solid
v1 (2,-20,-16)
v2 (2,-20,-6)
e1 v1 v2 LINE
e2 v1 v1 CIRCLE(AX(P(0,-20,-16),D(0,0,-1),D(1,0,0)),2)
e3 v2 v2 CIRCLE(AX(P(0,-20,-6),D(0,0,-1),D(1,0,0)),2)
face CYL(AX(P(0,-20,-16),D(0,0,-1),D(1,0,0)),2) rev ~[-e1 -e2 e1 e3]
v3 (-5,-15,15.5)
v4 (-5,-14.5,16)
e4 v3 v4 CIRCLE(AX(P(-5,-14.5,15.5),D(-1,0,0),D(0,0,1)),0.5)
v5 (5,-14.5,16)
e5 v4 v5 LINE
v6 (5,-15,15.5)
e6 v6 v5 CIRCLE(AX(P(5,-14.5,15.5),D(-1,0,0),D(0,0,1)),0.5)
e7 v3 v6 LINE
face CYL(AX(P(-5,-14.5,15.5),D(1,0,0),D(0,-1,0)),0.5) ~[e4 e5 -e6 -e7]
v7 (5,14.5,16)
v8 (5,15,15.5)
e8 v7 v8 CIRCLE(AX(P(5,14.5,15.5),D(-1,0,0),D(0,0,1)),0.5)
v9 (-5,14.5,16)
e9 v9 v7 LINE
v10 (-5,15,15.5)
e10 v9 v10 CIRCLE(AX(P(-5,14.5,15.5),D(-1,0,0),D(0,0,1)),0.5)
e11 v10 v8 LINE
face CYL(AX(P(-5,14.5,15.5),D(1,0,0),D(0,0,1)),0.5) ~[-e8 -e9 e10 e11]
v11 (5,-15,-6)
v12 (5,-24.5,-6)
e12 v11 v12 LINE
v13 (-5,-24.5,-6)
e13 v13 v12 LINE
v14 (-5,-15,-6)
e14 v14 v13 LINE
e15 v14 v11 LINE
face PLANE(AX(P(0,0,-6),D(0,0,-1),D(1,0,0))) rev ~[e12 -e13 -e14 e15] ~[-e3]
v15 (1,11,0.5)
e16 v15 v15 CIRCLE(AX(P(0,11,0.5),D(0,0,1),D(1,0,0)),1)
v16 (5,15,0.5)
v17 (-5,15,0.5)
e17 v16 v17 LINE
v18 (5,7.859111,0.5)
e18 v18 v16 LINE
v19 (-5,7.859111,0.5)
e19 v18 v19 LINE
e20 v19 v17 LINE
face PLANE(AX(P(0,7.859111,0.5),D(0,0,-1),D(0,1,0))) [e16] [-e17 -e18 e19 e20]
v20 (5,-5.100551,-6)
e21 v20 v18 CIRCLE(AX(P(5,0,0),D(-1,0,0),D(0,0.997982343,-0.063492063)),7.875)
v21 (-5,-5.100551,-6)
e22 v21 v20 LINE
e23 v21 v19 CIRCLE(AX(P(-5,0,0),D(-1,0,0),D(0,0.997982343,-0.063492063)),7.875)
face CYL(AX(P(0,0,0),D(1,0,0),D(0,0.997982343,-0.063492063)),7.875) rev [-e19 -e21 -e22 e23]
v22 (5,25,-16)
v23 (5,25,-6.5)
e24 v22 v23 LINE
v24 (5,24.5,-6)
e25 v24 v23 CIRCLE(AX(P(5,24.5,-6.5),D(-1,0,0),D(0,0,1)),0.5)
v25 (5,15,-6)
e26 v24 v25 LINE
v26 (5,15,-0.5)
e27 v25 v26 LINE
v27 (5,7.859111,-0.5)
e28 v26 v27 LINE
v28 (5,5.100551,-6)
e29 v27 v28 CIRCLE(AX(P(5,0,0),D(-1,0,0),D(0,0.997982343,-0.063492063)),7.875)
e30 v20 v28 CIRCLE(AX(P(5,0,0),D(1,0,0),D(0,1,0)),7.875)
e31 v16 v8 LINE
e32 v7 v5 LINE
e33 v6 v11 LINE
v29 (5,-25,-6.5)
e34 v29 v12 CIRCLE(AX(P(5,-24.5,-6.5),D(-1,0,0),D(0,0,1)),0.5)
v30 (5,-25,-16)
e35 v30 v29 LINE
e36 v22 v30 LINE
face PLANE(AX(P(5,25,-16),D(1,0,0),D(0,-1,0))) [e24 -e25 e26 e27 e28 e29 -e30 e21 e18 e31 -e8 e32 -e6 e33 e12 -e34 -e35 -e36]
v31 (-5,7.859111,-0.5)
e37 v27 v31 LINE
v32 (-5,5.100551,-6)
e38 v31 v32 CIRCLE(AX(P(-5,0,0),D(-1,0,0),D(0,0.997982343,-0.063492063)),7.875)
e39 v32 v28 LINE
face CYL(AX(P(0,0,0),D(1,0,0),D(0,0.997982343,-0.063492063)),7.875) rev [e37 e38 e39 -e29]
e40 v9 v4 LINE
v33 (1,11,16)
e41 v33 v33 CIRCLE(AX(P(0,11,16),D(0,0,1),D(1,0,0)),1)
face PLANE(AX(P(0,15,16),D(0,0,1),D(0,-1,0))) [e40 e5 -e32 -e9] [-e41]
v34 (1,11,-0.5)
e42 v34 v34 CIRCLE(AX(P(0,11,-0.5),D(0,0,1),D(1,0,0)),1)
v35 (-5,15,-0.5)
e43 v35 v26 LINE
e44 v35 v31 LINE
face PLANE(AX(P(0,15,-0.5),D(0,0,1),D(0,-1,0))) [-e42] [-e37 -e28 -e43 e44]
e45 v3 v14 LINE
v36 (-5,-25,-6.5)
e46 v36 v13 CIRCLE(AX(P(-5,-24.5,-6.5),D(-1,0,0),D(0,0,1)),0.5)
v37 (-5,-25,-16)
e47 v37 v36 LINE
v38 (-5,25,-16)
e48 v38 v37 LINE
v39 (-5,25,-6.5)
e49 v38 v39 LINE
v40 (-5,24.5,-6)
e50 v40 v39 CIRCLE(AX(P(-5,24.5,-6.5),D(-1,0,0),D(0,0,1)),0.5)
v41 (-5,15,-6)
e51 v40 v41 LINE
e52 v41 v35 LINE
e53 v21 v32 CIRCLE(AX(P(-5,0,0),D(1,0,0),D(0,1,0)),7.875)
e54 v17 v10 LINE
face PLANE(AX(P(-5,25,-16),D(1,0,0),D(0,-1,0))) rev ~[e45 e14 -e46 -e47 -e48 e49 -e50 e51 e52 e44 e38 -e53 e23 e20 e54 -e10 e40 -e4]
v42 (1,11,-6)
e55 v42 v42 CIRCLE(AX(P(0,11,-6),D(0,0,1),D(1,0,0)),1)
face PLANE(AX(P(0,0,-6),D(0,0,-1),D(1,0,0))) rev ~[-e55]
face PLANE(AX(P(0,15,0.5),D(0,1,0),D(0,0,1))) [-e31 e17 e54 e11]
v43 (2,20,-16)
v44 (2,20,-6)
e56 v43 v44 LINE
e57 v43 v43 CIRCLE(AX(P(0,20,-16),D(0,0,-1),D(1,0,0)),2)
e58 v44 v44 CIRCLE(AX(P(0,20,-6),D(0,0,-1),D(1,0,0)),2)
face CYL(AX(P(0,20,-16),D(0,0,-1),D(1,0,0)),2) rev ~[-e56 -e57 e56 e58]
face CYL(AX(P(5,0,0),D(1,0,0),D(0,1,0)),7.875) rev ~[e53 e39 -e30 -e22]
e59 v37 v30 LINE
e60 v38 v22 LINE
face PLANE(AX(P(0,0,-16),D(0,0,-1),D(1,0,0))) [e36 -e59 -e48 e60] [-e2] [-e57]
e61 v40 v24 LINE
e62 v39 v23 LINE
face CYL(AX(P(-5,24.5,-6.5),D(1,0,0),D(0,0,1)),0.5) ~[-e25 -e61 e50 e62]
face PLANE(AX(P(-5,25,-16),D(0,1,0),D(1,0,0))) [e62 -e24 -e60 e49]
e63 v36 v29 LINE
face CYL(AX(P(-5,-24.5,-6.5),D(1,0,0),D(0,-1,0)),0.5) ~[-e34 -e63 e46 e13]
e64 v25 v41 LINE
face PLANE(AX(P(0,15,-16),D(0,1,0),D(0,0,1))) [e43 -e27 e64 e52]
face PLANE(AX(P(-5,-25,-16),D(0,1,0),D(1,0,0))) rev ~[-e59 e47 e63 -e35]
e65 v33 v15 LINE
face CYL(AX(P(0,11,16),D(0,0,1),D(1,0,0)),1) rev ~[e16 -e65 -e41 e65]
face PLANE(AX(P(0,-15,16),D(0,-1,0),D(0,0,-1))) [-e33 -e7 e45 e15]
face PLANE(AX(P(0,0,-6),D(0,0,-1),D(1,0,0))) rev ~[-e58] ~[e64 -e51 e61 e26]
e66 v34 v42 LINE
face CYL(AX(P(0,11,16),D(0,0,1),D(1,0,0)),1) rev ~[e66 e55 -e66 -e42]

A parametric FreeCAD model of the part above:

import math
import FreeCAD as App
import Part
import Sketcher
Q = App.Units.Quantity


def edges_at(feature, points):
    """Names of the edges that pass closest to the given points."""
    edges = feature.Shape.Edges
    near = lambda p: min(range(len(edges)), key=lambda i: edges[i].distToShape(Part.Vertex(*p))[0])
    return sorted({f"Edge{near(p) + 1}" for p in points})

doc = App.newDocument("Part")
body = doc.addObject("PartDesign::Body", "Body")

# Sketch on YZ plane
sketch1 = body.newObject("Sketcher::SketchObject", "Sketch")
sketch1.AttachmentSupport = (doc.getObject("YZ_Plane"), [""])
sketch1.MapMode = "FlatFace"
sketch1.addGeometry([
    Part.LineSegment(App.Vector(15, 0.5, 0), App.Vector(15, 16, 0)),  # 0
    Part.LineSegment(App.Vector(15, 16, 0), App.Vector(-15, 16, 0)),  # 1
    Part.LineSegment(App.Vector(-15, 16, 0), App.Vector(-15, -16, 0)),  # 2
    Part.LineSegment(App.Vector(-15, -16, 0), App.Vector(15, -16, 0)),  # 3
    Part.LineSegment(App.Vector(15, -16, 0), App.Vector(15, -0.5, 0)),  # 4
    Part.LineSegment(App.Vector(15, -0.5, 0), App.Vector(7.9, -0.5, 0)),  # 5
    Part.ArcOfCircle(Part.Circle(App.Vector(0, 0, 0), App.Vector(0, 0, 1), 7.9), math.radians(4), math.radians(356)),  # 6
    Part.LineSegment(App.Vector(7.9, 0.5, 0), App.Vector(15, 0.5, 0)),  # 7
], False)
sketch1.addConstraint([
    Sketcher.Constraint("Coincident", 0, 2, 1, 1),
    Sketcher.Constraint("Coincident", 1, 2, 2, 1),
    Sketcher.Constraint("Coincident", 2, 2, 3, 1),
    Sketcher.Constraint("Coincident", 3, 2, 4, 1),
    Sketcher.Constraint("Coincident", 4, 2, 5, 1),
    Sketcher.Constraint("Coincident", 5, 2, 6, 2),
    Sketcher.Constraint("Coincident", 6, 1, 7, 1),
    Sketcher.Constraint("Coincident", 7, 2, 0, 1),
    Sketcher.Constraint("Vertical", 0),
    Sketcher.Constraint("Horizontal", 1),
    Sketcher.Constraint("Vertical", 2),
    Sketcher.Constraint("Horizontal", 3),
    Sketcher.Constraint("Vertical", 4),
    Sketcher.Constraint("Horizontal", 5),
    Sketcher.Constraint("Horizontal", 7),
    Sketcher.Constraint("Coincident", 6, 3, -1, 1),
    Sketcher.Constraint("Symmetric", 0, 2, 2, 2, -1, 1),
    Sketcher.Constraint("Symmetric", 4, 2, 7, 2, -1),
    Sketcher.Constraint("DistanceX", 1, 2, 1, 1, Q("30 mm")),
    Sketcher.Constraint("DistanceY", 2, 2, 2, 1, Q("32 mm")),
    Sketcher.Constraint("DistanceY", 0, 1, 0, 2, Q("15.5 mm")),
    Sketcher.Constraint("Radius", 6, Q("7.875 mm")),
])
pad1 = body.newObject("PartDesign::Pad", "Pad")
pad1.Profile = sketch1
pad1.Type = "TwoLengths"
pad1.Length = 5
pad1.Length2 = 5

# Sketch on XY plane
sketch2 = body.newObject("Sketcher::SketchObject", "Sketch001")
sketch2.AttachmentSupport = (doc.getObject("XY_Plane"), [""])
sketch2.MapMode = "FlatFace"
sketch2.AttachmentOffset = App.Placement(App.Vector(0, 0, 16), App.Rotation())
sketch2.addGeometry(Part.Circle(App.Vector(0, 11, 0), App.Vector(0, 0, 1), 1), False)
sketch2.addConstraint([
    Sketcher.Constraint("PointOnObject", 0, 3, -2),
    Sketcher.Constraint("Diameter", 0, Q("2 mm")),
    Sketcher.Constraint("DistanceY", -1, 1, 0, 3, Q("11 mm")),
])
pocket1 = body.newObject("PartDesign::Pocket", "Pocket")
pocket1.Profile = sketch2
pocket1.Type = "ThroughAll"

# Sketch on XY plane
sketch3 = body.newObject("Sketcher::SketchObject", "Sketch002")
sketch3.AttachmentSupport = (doc.getObject("XY_Plane"), [""])
sketch3.MapMode = "FlatFace"
sketch3.AttachmentOffset = App.Placement(App.Vector(0, 0, -16), App.Rotation())
sketch3.addGeometry([
    Part.LineSegment(App.Vector(-5, -25, 0), App.Vector(-5, 25, 0)),  # 0
    Part.LineSegment(App.Vector(-5, 25, 0), App.Vector(5, 25, 0)),  # 1
    Part.LineSegment(App.Vector(5, 25, 0), App.Vector(5, -25, 0)),  # 2
    Part.LineSegment(App.Vector(5, -25, 0), App.Vector(-5, -25, 0)),  # 3
    Part.Circle(App.Vector(0, 20, 0), App.Vector(0, 0, 1), 2),  # 4
    Part.Circle(App.Vector(0, -20, 0), App.Vector(0, 0, 1), 2),  # 5
], False)
sketch3.addConstraint([
    Sketcher.Constraint("Coincident", 0, 2, 1, 1),
    Sketcher.Constraint("Coincident", 1, 2, 2, 1),
    Sketcher.Constraint("Coincident", 2, 2, 3, 1),
    Sketcher.Constraint("Coincident", 3, 2, 0, 1),
    Sketcher.Constraint("Vertical", 0),
    Sketcher.Constraint("Horizontal", 1),
    Sketcher.Constraint("Vertical", 2),
    Sketcher.Constraint("Horizontal", 3),
    Sketcher.Constraint("Equal", 4, 5),
    Sketcher.Constraint("Symmetric", 4, 3, 5, 3, -1, 1),
    Sketcher.Constraint("Symmetric", 0, 2, 2, 2, -1, 1),
    Sketcher.Constraint("PointOnObject", 4, 3, -2),
    Sketcher.Constraint("Diameter", 4, Q("4 mm")),
    Sketcher.Constraint("DistanceX", 1, 1, 1, 2, Q("10 mm")),
    Sketcher.Constraint("DistanceY", 0, 1, 0, 2, Q("50 mm")),
    Sketcher.Constraint("DistanceY", -1, 1, 4, 3, Q("20 mm")),
])
pad2 = body.newObject("PartDesign::Pad", "Pad001")
pad2.Profile = sketch3
pad2.Length = 10

# Sketch on YZ plane
sketch4 = body.newObject("Sketcher::SketchObject", "Sketch003")
sketch4.AttachmentSupport = (doc.getObject("YZ_Plane"), [""])
sketch4.MapMode = "FlatFace"
sketch4.AttachmentOffset = App.Placement(App.Vector(0, 0, 5), App.Rotation())
sketch4.addGeometry(Part.Circle(App.Vector(0, 0, 0), App.Vector(0, 0, 1), 8), False)
sketch4.addConstraint([
    Sketcher.Constraint("Coincident", 0, 3, -1, 1),
    Sketcher.Constraint("Diameter", 0, Q("15.75 mm")),
])
pocket2 = body.newObject("PartDesign::Pocket", "Pocket001")
pocket2.Profile = sketch4
pocket2.Type = "ThroughAll"
doc.recompute()

fillet = body.newObject("PartDesign::Fillet", "Fillet")
fillet.Base = (pocket2, edges_at(pocket2, [
    (0, -15, 16),
    (0, 15, 16),
    (0, -25, -6),
    (0, 25, -6),
]))
fillet.Radius = 0.5

doc.recompute()
